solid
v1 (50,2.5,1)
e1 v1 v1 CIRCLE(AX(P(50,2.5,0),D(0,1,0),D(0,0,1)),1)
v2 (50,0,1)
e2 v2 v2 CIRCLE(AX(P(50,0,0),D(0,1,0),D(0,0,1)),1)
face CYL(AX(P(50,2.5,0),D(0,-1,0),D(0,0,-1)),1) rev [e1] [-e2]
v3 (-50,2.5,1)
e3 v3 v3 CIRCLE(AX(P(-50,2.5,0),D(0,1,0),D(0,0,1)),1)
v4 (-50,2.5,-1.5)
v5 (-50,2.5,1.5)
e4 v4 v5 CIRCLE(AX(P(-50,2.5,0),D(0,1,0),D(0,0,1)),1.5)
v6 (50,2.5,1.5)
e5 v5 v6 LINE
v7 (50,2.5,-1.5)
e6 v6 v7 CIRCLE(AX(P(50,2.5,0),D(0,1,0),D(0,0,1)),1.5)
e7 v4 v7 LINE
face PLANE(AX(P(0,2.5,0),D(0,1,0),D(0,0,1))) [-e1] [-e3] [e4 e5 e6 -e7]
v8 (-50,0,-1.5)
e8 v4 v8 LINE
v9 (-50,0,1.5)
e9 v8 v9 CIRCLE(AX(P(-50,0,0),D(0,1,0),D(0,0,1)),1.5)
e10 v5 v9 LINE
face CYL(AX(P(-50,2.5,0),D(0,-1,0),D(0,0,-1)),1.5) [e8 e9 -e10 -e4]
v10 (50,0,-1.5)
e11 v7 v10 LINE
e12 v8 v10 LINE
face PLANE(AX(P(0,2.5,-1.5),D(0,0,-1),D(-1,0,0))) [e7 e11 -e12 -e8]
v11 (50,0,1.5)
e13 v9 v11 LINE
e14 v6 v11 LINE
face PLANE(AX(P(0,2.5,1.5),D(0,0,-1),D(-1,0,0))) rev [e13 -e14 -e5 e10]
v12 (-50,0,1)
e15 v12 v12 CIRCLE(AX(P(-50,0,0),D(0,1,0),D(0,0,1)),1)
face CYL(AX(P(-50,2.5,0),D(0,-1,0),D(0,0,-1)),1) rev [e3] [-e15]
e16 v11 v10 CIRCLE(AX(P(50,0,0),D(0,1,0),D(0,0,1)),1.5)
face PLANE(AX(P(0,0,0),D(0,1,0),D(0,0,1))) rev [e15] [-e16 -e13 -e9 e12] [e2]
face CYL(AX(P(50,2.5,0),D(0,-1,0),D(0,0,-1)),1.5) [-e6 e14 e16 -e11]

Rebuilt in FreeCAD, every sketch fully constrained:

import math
import FreeCAD as App
import Part
import Sketcher

V = App.Vector

doc = App.newDocument("Part")
body = doc.addObject("PartDesign::Body", "Body")

sketch1 = body.newObject("Sketcher::SketchObject", "Sketch")
sketch1.AttachmentSupport = (doc.getObject("XZ_Plane"), [""])
sketch1.MapMode = "FlatFace"
sketch1.addGeometry([
    Part.LineSegment(V(-50, 1.5, 0), V(50, 1.5, 0)),
    Part.ArcOfCircle(Part.Circle(V(50, 0, 0), V(0, 0, 1), 1.5), math.radians(0), math.radians(90)),
    Part.ArcOfCircle(Part.Circle(V(50, 0, 0), V(0, 0, 1), 1.5), math.radians(-90), math.radians(0)),
    Part.LineSegment(V(50, -1.5, 0), V(-50, -1.5, 0)),
    Part.ArcOfCircle(Part.Circle(V(-50, 0, 0), V(0, 0, 1), 1.5), math.radians(90), math.radians(270)),
    Part.ArcOfCircle(Part.Circle(V(50, 0, 0), V(0, 0, 1), 1), math.radians(90), math.radians(270)),
    Part.ArcOfCircle(Part.Circle(V(50, 0, 0), V(0, 0, 1), 1), math.radians(-90), math.radians(0)),
    Part.ArcOfCircle(Part.Circle(V(50, 0, 0), V(0, 0, 1), 1), math.radians(0), math.radians(90)),
    Part.ArcOfCircle(Part.Circle(V(-50, 0, 0), V(0, 0, 1), 1), math.radians(90), math.radians(270)),
    Part.ArcOfCircle(Part.Circle(V(-50, 0, 0), V(0, 0, 1), 1), math.radians(-90), math.radians(0)),
    Part.ArcOfCircle(Part.Circle(V(-50, 0, 0), V(0, 0, 1), 1), math.radians(0), math.radians(90)),
], False)
sketch1.addConstraint([
    Sketcher.Constraint("Tangent", 0, 2, 1, 2),
    Sketcher.Constraint("Tangent", 1, 1, 2, 2),
    Sketcher.Constraint("Tangent", 2, 1, 3, 1),
    Sketcher.Constraint("Tangent", 3, 2, 4, 2),
    Sketcher.Constraint("Tangent", 4, 1, 0, 1),
    Sketcher.Constraint("Tangent", 5, 2, 6, 1),
    Sketcher.Constraint("Tangent", 6, 2, 7, 1),
    Sketcher.Constraint("Tangent", 7, 2, 5, 1),
    Sketcher.Constraint("Tangent", 8, 2, 9, 1),
    Sketcher.Constraint("Tangent", 9, 2, 10, 1),
    Sketcher.Constraint("Tangent", 10, 2, 8, 1),
    Sketcher.Constraint("Horizontal", 0),
    Sketcher.Constraint("Horizontal", 3),
    Sketcher.Constraint("Coincident", 5, 3, 1, 3),
    Sketcher.Constraint("Coincident", 8, 3, 4, 3),
    Sketcher.Constraint("Equal", 1, 2),
    Sketcher.Constraint("Equal", 7, 8),
    Sketcher.Constraint("Symmetric", 1, 3, 4, 3, -1, 1),
    Sketcher.Constraint("PointOnObject", 1, 1, -1),
    Sketcher.Constraint("PointOnObject", 6, 2, -1),
    Sketcher.Constraint("PointOnObject", 9, 2, -1),
    Sketcher.Constraint("Vertical", 2, 1, 5, 2),
    Sketcher.Constraint("Vertical", 5, 2, 7, 2),
    Sketcher.Constraint("Vertical", 4, 1, 8, 2),
    Sketcher.Constraint("Vertical", 8, 2, 10, 2),
    Sketcher.Constraint("Radius", 5, 1.0),
    Sketcher.Constraint("Radius", 1, 1.5),
    Sketcher.Constraint("DistanceX", 0, 1, 0, 2, 100.0),
])
pad1 = body.newObject("PartDesign::Pad", "Pad")
pad1.Profile = sketch1
pad1.Length = 2.5
pad1.Reversed = True

doc.recompute()
